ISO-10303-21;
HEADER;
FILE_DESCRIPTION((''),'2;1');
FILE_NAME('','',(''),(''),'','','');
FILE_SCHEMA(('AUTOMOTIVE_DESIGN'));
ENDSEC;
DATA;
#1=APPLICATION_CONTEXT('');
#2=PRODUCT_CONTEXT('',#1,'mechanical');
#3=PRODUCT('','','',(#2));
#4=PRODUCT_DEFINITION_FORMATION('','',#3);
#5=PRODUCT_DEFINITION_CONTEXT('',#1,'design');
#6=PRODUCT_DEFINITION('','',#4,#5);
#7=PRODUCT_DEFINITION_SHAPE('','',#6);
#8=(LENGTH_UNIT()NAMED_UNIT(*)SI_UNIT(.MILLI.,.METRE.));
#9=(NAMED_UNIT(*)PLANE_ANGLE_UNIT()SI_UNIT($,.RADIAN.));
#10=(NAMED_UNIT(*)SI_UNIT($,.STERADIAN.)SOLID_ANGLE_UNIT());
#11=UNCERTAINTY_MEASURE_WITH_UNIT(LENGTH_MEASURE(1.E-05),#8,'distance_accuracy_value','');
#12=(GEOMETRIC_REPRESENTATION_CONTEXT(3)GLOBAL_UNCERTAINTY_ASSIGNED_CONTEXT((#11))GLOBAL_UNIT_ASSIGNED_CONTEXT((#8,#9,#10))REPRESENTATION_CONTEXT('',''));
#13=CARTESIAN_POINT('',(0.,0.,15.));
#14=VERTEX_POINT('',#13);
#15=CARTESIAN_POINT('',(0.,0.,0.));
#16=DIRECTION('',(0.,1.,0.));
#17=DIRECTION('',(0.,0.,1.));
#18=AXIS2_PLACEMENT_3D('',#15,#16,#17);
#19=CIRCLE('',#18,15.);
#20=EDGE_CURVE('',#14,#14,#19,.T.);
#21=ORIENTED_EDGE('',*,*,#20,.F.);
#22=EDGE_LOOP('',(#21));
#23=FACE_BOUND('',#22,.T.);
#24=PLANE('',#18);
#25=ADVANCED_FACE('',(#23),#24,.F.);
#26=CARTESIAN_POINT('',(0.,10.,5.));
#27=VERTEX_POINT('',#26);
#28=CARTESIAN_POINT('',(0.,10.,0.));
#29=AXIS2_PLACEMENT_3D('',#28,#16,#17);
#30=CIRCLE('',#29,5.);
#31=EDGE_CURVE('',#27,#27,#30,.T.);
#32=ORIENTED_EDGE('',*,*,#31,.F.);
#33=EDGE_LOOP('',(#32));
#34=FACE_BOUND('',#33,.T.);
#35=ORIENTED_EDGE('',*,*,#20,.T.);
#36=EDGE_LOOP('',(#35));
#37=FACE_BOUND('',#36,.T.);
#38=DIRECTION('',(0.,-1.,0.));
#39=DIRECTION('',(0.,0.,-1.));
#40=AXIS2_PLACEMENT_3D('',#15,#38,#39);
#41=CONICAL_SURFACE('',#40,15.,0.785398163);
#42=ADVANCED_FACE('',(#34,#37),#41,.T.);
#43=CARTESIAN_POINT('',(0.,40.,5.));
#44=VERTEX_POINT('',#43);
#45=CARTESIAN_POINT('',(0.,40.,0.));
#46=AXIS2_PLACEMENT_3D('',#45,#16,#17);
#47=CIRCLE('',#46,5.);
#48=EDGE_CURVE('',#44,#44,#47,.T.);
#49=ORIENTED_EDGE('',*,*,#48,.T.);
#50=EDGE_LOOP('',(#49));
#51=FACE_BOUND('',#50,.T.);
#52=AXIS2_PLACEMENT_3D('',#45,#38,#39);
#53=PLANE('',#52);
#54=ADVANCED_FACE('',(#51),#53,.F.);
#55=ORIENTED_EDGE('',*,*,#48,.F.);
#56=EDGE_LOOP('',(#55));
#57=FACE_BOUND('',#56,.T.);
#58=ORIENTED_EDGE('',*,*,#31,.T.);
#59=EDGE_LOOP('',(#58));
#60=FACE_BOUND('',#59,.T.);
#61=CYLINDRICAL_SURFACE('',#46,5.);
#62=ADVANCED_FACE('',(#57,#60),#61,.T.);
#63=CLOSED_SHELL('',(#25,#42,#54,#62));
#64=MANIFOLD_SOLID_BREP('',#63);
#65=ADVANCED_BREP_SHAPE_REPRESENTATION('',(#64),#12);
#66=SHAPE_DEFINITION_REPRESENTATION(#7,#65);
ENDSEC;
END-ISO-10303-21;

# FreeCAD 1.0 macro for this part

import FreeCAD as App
import Part
import Sketcher

doc = App.newDocument("Part")
body = doc.addObject("PartDesign::Body", "Body")

sketch1 = body.newObject("Sketcher::SketchObject", "Sketch")
sketch1.AttachmentSupport = (doc.getObject("YZ_Plane"), [""])
sketch1.MapMode = "FlatFace"
sketch1.addGeometry(Part.LineSegment(App.Vector(0, -15, 0), App.Vector(10, -5, 0)), False)
sketch1.addGeometry(Part.LineSegment(App.Vector(10, -5, 0), App.Vector(40, -5, 0)), False)
sketch1.addGeometry(Part.LineSegment(App.Vector(40, -5, 0), App.Vector(40, 0, 0)), False)
sketch1.addGeometry(Part.LineSegment(App.Vector(40, 0, 0), App.Vector(0, 0, 0)), False)
sketch1.addGeometry(Part.LineSegment(App.Vector(0, 0, 0), App.Vector(0, -15, 0)), False)
sketch1.addConstraint(Sketcher.Constraint("Coincident", 0, 2, 1, 1))
sketch1.addConstraint(Sketcher.Constraint("Coincident", 1, 2, 2, 1))
sketch1.addConstraint(Sketcher.Constraint("Coincident", 2, 2, 3, 1))
sketch1.addConstraint(Sketcher.Constraint("Coincident", 3, 2, 4, 1))
sketch1.addConstraint(Sketcher.Constraint("Coincident", 4, 2, 0, 1))
sketch1.addConstraint(Sketcher.Constraint("Horizontal", 1))
sketch1.addConstraint(Sketcher.Constraint("Vertical", 2))
sketch1.addConstraint(Sketcher.Constraint("Horizontal", 3))
sketch1.addConstraint(Sketcher.Constraint("Vertical", 4))
sketch1.addConstraint(Sketcher.Constraint("Coincident", 3, 2, -1, 1))
sketch1.addConstraint(Sketcher.Constraint("DistanceX", 1, 1, 1, 2, 30.0))
sketch1.addConstraint(Sketcher.Constraint("DistanceX", 3, 2, 3, 1, 40.0))
sketch1.addConstraint(Sketcher.Constraint("DistanceY", 2, 1, 2, 2, 5.0))
sketch1.addConstraint(Sketcher.Constraint("DistanceY", 4, 2, 4, 1, 15.0))
revolution = body.newObject("PartDesign::Revolution", "Revolution")
revolution.Profile = sketch1
revolution.ReferenceAxis = (sketch1, ["H_Axis"])
revolution.Angle = 360

doc.recompute()
